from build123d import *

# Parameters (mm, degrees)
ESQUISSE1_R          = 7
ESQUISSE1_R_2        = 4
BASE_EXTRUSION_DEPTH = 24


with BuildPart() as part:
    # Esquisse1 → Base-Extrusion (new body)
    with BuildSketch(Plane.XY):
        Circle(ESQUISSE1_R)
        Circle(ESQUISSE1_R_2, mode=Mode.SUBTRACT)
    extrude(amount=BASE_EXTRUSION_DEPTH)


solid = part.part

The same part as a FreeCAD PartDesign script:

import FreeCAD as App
import Part
import Sketcher

V = App.Vector

doc = App.newDocument("Part")
body = doc.addObject("PartDesign::Body", "Body")

# Sketch on XY plane
sketch1 = body.newObject("Sketcher::SketchObject", "Sketch")
sketch1.AttachmentSupport = (doc.getObject("XY_Plane"), [""])
sketch1.MapMode = "FlatFace"
sketch1.addGeometry([
    Part.Circle(V(0, 0, 0), V(0, 0, 1), 7),
    Part.Circle(V(0, 0, 0), V(0, 0, 1), 4),
], False)
sketch1.addConstraint([
    Sketcher.Constraint("Coincident", 0, 3, -1, 1),
    Sketcher.Constraint("Coincident", 1, 3, -1, 1),
    Sketcher.Constraint("Diameter", 0, 14.0),
    Sketcher.Constraint("Diameter", 1, 8.0),
])
pad1 = body.newObject("PartDesign::Pad", "Pad")
pad1.Profile = sketch1
pad1.Length = 24

doc.recompute()
